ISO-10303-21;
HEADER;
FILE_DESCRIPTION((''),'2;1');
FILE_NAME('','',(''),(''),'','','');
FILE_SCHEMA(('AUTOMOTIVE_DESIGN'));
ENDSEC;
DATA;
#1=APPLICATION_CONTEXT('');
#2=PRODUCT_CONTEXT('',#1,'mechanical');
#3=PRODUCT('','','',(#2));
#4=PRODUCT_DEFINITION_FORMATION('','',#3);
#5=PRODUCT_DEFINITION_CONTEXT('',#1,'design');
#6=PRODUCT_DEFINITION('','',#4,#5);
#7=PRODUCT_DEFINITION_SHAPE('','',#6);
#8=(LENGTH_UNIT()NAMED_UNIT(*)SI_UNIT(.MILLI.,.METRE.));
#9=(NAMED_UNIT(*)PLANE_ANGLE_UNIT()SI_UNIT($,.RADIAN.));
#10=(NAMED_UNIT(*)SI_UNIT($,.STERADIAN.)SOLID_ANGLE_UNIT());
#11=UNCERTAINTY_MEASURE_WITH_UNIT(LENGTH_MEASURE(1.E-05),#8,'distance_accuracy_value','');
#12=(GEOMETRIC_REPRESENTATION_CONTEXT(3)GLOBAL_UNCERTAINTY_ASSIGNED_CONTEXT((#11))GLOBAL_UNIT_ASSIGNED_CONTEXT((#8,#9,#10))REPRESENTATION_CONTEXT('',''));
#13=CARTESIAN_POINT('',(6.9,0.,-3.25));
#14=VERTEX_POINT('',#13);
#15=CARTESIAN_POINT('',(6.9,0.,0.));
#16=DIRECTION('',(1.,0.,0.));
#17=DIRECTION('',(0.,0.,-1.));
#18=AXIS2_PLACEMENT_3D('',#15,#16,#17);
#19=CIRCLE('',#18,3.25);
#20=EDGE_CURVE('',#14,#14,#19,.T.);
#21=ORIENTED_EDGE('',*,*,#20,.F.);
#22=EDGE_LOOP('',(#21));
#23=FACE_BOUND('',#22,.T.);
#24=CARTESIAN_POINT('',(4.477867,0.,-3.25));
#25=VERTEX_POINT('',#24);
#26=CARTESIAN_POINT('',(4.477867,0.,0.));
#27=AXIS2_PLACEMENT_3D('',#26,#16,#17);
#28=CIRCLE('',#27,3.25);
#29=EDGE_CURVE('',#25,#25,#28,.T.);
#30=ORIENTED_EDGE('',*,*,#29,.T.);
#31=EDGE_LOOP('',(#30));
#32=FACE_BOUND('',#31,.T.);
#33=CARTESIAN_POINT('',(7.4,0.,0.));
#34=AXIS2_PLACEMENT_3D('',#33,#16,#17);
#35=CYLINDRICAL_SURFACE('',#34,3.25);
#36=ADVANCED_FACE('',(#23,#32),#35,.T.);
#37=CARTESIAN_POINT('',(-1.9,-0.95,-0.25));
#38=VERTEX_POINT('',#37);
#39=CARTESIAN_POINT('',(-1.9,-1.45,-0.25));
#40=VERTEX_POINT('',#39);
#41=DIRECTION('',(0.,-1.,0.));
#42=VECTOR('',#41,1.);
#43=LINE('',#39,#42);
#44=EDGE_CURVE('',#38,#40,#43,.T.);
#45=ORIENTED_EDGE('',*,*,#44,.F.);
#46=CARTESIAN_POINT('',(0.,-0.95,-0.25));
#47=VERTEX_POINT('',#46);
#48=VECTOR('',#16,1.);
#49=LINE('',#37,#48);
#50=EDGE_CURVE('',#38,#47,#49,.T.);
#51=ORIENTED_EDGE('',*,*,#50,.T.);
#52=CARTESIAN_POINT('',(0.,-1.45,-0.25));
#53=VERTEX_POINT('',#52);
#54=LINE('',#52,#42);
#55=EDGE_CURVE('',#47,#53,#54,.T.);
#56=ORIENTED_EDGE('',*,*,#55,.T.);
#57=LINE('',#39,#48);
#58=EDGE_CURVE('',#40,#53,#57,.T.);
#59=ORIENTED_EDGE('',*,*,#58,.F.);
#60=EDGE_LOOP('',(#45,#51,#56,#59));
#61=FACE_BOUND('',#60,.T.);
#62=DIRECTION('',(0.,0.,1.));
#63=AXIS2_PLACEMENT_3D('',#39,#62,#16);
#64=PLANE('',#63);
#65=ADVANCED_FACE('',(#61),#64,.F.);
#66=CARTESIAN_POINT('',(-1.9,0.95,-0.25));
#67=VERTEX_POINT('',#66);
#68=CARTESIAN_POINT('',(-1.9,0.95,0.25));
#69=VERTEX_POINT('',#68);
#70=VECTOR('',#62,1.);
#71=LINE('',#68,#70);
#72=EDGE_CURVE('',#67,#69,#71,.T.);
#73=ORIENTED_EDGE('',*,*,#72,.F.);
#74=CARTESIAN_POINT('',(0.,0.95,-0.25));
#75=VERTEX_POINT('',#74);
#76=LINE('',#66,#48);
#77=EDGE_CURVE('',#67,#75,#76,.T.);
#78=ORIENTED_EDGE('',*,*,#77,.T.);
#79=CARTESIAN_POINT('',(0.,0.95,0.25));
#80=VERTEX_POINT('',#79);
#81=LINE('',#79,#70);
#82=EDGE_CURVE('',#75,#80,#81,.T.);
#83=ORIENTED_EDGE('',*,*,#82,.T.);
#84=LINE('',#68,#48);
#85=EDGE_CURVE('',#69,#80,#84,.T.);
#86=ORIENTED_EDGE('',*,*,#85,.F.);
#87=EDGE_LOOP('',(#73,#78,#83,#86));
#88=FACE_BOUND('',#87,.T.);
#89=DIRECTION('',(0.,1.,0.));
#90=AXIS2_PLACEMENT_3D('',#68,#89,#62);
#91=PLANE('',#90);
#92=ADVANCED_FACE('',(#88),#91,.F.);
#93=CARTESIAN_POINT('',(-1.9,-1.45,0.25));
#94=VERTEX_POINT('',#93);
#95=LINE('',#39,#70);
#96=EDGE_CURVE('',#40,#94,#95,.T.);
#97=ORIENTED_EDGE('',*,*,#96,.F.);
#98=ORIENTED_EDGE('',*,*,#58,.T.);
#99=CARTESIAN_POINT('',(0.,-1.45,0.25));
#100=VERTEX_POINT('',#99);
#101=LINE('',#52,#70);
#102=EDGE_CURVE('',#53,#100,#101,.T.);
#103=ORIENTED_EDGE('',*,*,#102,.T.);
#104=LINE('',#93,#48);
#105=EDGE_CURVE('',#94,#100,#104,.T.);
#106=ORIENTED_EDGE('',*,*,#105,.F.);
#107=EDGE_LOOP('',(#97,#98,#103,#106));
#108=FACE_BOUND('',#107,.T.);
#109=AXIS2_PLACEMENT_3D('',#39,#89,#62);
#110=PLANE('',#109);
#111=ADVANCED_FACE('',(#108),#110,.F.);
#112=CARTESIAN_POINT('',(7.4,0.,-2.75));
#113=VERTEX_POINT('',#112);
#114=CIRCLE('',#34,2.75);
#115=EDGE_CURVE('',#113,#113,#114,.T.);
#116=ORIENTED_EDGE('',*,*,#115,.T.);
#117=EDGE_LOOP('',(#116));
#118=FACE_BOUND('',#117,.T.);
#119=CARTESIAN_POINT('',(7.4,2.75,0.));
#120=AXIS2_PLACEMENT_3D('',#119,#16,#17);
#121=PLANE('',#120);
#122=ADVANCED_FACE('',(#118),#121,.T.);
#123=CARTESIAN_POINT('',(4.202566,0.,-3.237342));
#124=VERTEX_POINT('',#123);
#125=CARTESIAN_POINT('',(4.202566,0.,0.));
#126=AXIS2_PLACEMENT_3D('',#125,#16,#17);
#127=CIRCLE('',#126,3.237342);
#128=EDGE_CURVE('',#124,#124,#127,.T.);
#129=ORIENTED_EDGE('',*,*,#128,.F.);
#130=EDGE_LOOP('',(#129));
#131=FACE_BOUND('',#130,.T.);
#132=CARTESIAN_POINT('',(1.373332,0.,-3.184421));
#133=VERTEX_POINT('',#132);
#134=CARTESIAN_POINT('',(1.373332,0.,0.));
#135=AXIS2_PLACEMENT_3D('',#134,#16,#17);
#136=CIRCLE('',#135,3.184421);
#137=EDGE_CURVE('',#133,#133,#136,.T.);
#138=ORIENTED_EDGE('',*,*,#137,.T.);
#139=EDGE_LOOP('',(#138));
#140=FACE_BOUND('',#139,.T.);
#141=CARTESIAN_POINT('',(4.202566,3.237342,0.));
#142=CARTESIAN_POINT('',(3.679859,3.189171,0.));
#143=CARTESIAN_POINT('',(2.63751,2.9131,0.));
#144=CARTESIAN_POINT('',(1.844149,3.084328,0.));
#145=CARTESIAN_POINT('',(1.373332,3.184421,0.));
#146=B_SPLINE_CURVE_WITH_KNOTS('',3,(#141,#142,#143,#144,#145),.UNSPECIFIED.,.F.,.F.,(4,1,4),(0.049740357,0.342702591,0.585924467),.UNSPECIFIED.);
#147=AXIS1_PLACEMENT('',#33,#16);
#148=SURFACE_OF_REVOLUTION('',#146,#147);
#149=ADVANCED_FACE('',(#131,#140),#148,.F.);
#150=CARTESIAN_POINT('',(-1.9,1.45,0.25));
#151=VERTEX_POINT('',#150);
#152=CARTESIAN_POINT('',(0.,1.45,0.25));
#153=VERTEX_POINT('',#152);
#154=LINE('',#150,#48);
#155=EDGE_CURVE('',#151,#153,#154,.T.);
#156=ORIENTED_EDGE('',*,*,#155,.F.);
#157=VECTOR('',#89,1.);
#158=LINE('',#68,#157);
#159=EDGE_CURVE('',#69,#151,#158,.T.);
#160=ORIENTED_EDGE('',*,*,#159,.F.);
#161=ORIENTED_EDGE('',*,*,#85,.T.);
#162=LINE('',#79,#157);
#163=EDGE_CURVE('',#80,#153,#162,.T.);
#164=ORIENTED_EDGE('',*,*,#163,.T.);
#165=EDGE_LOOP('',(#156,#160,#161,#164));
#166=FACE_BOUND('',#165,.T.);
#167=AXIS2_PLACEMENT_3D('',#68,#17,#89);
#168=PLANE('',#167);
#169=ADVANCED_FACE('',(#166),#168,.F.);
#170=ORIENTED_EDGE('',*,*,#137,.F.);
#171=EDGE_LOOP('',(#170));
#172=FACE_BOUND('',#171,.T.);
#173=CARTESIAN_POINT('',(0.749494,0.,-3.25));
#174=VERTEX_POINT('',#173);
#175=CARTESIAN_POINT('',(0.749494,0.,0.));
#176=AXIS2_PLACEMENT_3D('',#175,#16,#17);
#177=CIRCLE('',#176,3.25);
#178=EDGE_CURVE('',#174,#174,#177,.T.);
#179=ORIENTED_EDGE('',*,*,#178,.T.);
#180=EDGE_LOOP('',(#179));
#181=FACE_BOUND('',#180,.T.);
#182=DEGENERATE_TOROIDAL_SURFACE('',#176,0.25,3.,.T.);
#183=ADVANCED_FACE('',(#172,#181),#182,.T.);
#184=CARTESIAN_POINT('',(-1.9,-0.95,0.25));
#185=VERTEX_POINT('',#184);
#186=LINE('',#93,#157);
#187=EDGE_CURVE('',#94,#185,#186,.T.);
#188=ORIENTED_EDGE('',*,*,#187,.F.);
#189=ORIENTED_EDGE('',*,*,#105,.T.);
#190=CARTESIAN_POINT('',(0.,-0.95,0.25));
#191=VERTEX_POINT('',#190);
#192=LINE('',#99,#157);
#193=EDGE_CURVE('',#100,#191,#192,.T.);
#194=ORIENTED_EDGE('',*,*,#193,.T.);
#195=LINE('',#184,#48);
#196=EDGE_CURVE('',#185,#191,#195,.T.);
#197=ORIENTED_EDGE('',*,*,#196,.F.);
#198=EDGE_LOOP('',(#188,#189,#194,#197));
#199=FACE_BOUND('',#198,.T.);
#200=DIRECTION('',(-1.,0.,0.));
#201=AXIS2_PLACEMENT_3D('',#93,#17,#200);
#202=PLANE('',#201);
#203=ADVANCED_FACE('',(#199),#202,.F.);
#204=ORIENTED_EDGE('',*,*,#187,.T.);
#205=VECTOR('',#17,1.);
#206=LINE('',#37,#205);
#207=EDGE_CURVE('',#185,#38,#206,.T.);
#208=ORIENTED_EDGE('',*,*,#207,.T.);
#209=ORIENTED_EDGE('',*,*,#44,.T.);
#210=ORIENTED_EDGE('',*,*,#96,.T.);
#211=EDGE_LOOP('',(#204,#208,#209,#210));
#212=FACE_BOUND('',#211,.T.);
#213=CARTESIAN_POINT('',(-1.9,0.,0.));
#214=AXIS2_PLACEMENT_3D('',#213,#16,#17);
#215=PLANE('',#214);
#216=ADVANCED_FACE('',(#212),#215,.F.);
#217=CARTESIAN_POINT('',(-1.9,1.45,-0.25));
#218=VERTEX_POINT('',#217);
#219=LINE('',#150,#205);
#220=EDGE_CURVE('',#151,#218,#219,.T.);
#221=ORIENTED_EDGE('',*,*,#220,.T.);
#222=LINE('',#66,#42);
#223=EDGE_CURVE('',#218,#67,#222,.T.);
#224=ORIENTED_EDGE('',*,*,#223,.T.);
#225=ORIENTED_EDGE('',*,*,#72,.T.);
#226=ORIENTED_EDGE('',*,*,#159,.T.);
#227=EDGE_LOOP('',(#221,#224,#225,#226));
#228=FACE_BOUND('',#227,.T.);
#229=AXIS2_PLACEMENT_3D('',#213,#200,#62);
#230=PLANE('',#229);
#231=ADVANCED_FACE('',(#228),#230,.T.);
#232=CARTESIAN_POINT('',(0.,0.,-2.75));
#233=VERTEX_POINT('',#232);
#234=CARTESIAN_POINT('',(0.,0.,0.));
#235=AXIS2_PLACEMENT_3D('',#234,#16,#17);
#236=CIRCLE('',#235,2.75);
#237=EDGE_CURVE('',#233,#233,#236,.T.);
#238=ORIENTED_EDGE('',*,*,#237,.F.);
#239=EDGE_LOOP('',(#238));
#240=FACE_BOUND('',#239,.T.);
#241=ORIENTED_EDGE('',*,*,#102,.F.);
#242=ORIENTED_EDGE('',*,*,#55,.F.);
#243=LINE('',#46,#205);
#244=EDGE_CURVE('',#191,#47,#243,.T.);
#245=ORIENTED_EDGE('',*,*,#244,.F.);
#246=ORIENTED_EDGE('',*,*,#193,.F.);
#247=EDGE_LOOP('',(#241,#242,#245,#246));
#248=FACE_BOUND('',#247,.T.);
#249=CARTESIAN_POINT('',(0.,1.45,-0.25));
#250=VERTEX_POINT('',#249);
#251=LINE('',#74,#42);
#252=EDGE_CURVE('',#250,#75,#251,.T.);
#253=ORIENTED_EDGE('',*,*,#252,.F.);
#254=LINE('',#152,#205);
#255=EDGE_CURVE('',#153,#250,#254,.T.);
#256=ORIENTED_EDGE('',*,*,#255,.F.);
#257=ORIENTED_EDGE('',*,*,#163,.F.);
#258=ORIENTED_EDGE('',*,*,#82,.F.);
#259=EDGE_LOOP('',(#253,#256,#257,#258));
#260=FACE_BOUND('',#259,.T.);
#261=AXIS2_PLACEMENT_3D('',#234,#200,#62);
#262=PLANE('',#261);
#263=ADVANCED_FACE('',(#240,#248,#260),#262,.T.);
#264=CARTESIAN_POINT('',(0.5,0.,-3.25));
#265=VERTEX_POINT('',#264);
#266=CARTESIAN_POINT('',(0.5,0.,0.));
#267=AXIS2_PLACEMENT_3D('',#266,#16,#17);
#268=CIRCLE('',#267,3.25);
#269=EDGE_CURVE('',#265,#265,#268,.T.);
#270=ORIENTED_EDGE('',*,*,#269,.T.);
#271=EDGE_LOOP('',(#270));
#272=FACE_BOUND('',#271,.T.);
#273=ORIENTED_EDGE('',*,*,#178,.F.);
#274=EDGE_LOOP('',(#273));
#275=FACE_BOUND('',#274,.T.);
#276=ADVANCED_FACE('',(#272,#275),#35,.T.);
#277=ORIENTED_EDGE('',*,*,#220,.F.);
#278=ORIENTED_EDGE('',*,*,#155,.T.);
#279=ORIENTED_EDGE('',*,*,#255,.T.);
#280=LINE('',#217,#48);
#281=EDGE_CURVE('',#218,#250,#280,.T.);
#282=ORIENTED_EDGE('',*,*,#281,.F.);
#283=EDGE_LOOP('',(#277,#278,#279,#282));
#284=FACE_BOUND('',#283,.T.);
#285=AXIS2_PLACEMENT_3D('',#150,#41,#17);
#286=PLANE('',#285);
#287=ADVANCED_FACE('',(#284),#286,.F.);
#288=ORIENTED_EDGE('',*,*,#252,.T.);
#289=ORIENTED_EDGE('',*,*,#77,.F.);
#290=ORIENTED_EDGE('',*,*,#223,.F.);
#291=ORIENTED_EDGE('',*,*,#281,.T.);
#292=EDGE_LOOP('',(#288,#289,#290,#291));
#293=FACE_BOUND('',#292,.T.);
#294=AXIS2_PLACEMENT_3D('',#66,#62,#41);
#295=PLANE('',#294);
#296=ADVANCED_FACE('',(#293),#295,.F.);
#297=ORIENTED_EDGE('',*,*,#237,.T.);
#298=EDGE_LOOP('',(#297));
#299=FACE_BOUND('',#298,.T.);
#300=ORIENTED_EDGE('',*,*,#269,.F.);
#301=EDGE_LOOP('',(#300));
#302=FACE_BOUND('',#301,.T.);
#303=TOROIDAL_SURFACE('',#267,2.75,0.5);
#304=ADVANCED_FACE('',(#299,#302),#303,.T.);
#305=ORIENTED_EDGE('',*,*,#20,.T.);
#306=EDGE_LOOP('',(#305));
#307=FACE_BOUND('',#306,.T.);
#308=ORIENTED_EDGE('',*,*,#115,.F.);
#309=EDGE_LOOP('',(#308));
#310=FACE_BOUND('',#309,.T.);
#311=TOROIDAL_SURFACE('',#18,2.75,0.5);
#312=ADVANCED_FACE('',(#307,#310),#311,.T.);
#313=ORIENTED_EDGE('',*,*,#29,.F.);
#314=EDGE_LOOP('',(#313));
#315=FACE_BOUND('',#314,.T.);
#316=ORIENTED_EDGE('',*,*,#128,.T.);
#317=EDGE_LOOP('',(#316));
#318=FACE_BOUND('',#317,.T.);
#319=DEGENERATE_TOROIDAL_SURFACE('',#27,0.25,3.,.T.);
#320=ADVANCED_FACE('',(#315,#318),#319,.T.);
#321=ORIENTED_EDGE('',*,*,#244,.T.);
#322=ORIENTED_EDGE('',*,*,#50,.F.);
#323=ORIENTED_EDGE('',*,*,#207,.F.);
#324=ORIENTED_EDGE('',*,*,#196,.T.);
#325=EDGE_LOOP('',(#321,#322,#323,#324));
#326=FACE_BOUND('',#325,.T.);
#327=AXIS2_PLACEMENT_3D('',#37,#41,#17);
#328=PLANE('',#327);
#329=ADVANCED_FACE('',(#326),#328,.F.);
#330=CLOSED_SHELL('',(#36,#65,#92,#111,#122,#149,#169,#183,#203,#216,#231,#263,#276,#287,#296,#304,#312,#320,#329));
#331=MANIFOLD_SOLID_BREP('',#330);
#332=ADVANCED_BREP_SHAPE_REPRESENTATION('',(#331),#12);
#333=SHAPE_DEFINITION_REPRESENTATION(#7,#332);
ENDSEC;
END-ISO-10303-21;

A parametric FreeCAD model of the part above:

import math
import FreeCAD as App
import Part
import Sketcher

V = App.Vector
Q = App.Units.Quantity


def add_polygon(sketch, points):
    """Adds a closed chain of lines whose ends are joined by coincident constraints."""
    first, n = sketch.GeometryCount, len(points)
    for a, b in zip(points, points[1:] + points[:1]):
        sketch.addGeometry(Part.LineSegment(App.Vector(*a, 0), App.Vector(*b, 0)), False)
    for i in range(n):
        sketch.addConstraint(Sketcher.Constraint("Coincident", first + i, 2, first + (i + 1) % n, 1))

doc = App.newDocument("Part")
params = doc.addObject("Spreadsheet::Sheet", "Params")
for row, (alias, value) in enumerate([
    ("sketch1_radius", "3 mm"),
    ("sketch1_radius2", "0.5 mm"),
    ("sketch1_width", "7.4 mm"),
    ("sketch1_height", "2.75 mm"),
    ("revolution_angle", "360 deg"),
    ("sketch2_width", "0.5 mm"),
    ("pad1_length", "1.9 mm"),
], start=1):
    params.set(f"A{row}", alias)
    params.set(f"B{row}", "=" + value)
    params.setAlias(f"B{row}", alias)

body = doc.addObject("PartDesign::Body", "Body")

# Sketch on XY plane
sketch1 = body.newObject("Sketcher::SketchObject", "Sketch")
sketch1.AttachmentSupport = (doc.getObject("XY_Plane"), [""])
sketch1.MapMode = "FlatFace"
sketch1.addGeometry([
    Part.LineSegment(V(0, 2.75, 0), V(0, 0, 0)),  # 0
    Part.LineSegment(V(0, 0, 0), V(7.4, 0, 0)),  # 1
    Part.LineSegment(V(7.4, 0, 0), V(7.4, 2.75, 0)),  # 2
    Part.ArcOfCircle(Part.Circle(V(6.9, 2.75, 0), V(0, 0, 1), 0.5), math.radians(0), math.radians(90)),  # 3
    Part.LineSegment(V(6.9, 3.25, 0), V(4.477867, 3.25, 0)),  # 4
    Part.ArcOfCircle(Part.Circle(V(4.477867, 0.25, 0), V(0, 0, 1), 3), math.radians(90), math.radians(95.26526)),  # 5
    Part.BSplineCurve([V(1.373332, 3.184421, 0), V(1.844149, 3.084328, 0), V(2.63751, 2.9131, 0), V(3.679859, 3.189171, 0), V(4.202566, 3.237342, 0)], [4, 1, 4], [0.049740357, 0.292962234, 0.585924467], False, 3, [1, 1, 1, 1, 1], False),  # 6
    Part.ArcOfCircle(Part.Circle(V(0.749494, 0.25, 0), V(0, 0, 1), 3), math.radians(77.99798), math.radians(90)),  # 7
    Part.LineSegment(V(0.749494, 3.25, 0), V(0.5, 3.25, 0)),  # 8
    Part.ArcOfCircle(Part.Circle(V(0.5, 2.75, 0), V(0, 0, 1), 0.5), math.radians(90), math.radians(180)),  # 9
], False)
sketch1.addConstraint([
    Sketcher.Constraint("Block", 6),
    Sketcher.Constraint("Coincident", 0, 2, 1, 1),
    Sketcher.Constraint("Coincident", 1, 2, 2, 1),
    Sketcher.Constraint("Tangent", 2, 2, 3, 1),
    Sketcher.Constraint("Tangent", 3, 2, 4, 1),
    Sketcher.Constraint("Tangent", 4, 2, 5, 1),
    Sketcher.Constraint("Coincident", 5, 2, 6, 2),
    Sketcher.Constraint("Coincident", 6, 1, 7, 1),
    Sketcher.Constraint("Tangent", 7, 2, 8, 1),
    Sketcher.Constraint("Tangent", 8, 2, 9, 1),
    Sketcher.Constraint("Tangent", 9, 2, 0, 1),
    Sketcher.Constraint("Vertical", 0),
    Sketcher.Constraint("Horizontal", 1),
    Sketcher.Constraint("Vertical", 2),
    Sketcher.Constraint("Horizontal", 4),
    Sketcher.Constraint("Horizontal", 8),
    Sketcher.Constraint("Coincident", 0, 2, -1, 1),
    Sketcher.Constraint("Equal", 5, 7),
    Sketcher.Constraint("Equal", 3, 9),
    Sketcher.Constraint("Horizontal", 5, 3, 7, 3),
    Sketcher.Constraint("Radius", 5, Q("3 mm")),
    Sketcher.Constraint("Radius", 3, Q("0.5 mm")),
    Sketcher.Constraint("DistanceX", 1, 1, 1, 2, Q("7.4 mm")),
    Sketcher.Constraint("DistanceY", 0, 2, 0, 1, Q("2.75 mm")),
])
sketch1.setExpression("Constraints[20]", "Params.sketch1_radius")
sketch1.setExpression("Constraints[21]", "Params.sketch1_radius2")
sketch1.setExpression("Constraints[22]", "Params.sketch1_width")
sketch1.setExpression("Constraints[23]", "Params.sketch1_height")
revolution = body.newObject("PartDesign::Revolution", "Revolution")
revolution.Profile = sketch1
revolution.ReferenceAxis = (sketch1, ["H_Axis"])
revolution.setExpression("Angle", "Params.revolution_angle")

# Sketch on YZ plane
sketch2 = body.newObject("Sketcher::SketchObject", "Sketch001")
sketch2.AttachmentSupport = (doc.getObject("YZ_Plane"), [""])
sketch2.MapMode = "FlatFace"
add_polygon(sketch2, [(-0.9, -0.2), (-1.4, -0.2), (-1.4, 0.2), (-0.9, 0.2)])  # lines 0-3
add_polygon(sketch2, [(1.4, -0.2), (0.9, -0.2), (0.9, 0.2), (1.4, 0.2)])  # lines 4-7
sketch2.addConstraint([
    Sketcher.Constraint("Horizontal", 0),
    Sketcher.Constraint("Vertical", 1),
    Sketcher.Constraint("Horizontal", 2),
    Sketcher.Constraint("Vertical", 3),
    Sketcher.Constraint("Horizontal", 4),
    Sketcher.Constraint("Vertical", 5),
    Sketcher.Constraint("Horizontal", 6),
    Sketcher.Constraint("Vertical", 7),
    Sketcher.Constraint("Symmetric", 2, 2, 4, 2, -1, 1),
    Sketcher.Constraint("Symmetric", 0, 2, 6, 2, -1, 1),
    Sketcher.Constraint("Horizontal", 3, 2, 4, 2),
    Sketcher.Constraint("Equal", 6, 1),
    Sketcher.Constraint("DistanceX", 0, 2, 0, 1, Q("0.5 mm")),
    Sketcher.Constraint("DistanceX", 3, 2, 4, 2, Q("1.9 mm")),
])
sketch2.setExpression("Constraints[20]", "Params.sketch2_width")
pad1 = body.newObject("PartDesign::Pad", "Pad")
pad1.Profile = sketch2
pad1.setExpression("Length", "Params.pad1_length")
pad1.Reversed = True

doc.recompute()
